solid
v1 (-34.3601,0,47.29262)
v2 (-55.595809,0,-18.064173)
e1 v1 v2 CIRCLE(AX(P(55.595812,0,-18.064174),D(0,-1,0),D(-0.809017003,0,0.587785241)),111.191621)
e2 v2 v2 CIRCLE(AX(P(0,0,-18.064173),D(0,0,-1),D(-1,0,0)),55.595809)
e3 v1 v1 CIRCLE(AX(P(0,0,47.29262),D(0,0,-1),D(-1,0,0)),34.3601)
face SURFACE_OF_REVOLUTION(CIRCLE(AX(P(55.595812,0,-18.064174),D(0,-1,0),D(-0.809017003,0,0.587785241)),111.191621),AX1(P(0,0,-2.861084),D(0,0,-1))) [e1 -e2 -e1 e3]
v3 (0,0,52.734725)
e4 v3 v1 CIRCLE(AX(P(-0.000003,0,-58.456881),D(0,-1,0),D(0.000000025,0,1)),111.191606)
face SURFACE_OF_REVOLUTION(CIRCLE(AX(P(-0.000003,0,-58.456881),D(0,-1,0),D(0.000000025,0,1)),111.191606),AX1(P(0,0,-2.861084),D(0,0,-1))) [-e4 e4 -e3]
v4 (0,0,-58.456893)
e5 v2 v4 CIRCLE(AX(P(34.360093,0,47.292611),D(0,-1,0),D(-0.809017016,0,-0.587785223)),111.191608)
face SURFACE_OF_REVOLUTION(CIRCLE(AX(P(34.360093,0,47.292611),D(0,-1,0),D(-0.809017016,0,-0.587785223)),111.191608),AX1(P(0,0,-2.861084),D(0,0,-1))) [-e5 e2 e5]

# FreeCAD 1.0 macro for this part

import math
import FreeCAD as App
import Part
import Sketcher
from FreeCAD import Vector
Q = App.Units.Quantity

doc = App.newDocument("Part")
body = doc.addObject("PartDesign::Body", "Body")

# Sketch on XZ plane
sketch1 = body.newObject("Sketcher::SketchObject", "Sketch")
sketch1.AttachmentSupport = (doc.getObject("XZ_Plane"), [""])
sketch1.MapMode = "FlatFace"
sketch1.addGeometry(Part.ArcOfCircle(Part.Circle(Vector(55.595812, -18.064174, 0), Vector(0, 0, 1), 111.191621), math.radians(144.000001), math.radians(180)), False)
sketch1.addGeometry(Part.ArcOfCircle(Part.Circle(Vector(34.360093, 47.292611, 0), Vector(0, 0, 1), 111.191608), math.radians(-144.000002), math.radians(-107.999998)), False)
sketch1.addGeometry(Part.LineSegment(Vector(0, -58.456893, 0), Vector(0, 52.734725, 0)), False)
sketch1.addGeometry(Part.ArcOfCircle(Part.Circle(Vector(-0.000003, -58.456881, 0), Vector(0, 0, 1), 111.191606), math.radians(89.999999), math.radians(108.000001)), False)
sketch1.addConstraint(Sketcher.Constraint("Coincident", 0, 2, 1, 1))
sketch1.addConstraint(Sketcher.Constraint("Coincident", 1, 2, 2, 1))
sketch1.addConstraint(Sketcher.Constraint("Coincident", 2, 2, 3, 1))
sketch1.addConstraint(Sketcher.Constraint("Coincident", 3, 2, 0, 1))
sketch1.addConstraint(Sketcher.Constraint("Vertical", 2))
sketch1.addConstraint(Sketcher.Constraint("Equal", 1, 3))
sketch1.addConstraint(Sketcher.Constraint("PointOnObject", 1, 2, -2))
sketch1.addConstraint(Sketcher.Constraint("Radius", 0, Q("111.191621 mm")))
sketch1.addConstraint(Sketcher.Constraint("Radius", 1, Q("111.191608 mm")))
sketch1.addConstraint(Sketcher.Constraint("DistanceY", 2, 1, 2, 2, Q("111.191618 mm")))
sketch1.addConstraint(Sketcher.Constraint("DistanceX", 3, 2, -1, 1, Q("34.3601 mm")))
sketch1.addConstraint(Sketcher.Constraint("DistanceY", 0, 2, 2, 2, Q("70.798898 mm")))
sketch1.addConstraint(Sketcher.Constraint("DistanceY", 0, 3, 2, 2, Q("70.798899 mm")))
sketch1.addConstraint(Sketcher.Constraint("DistanceY", 3, 3, 3, 2, Q("105.749501 mm")))
sketch1.addConstraint(Sketcher.Constraint("DistanceY", -1, 1, 1, 3, Q("47.292611 mm")))
revolution = body.newObject("PartDesign::Revolution", "Revolution")
revolution.Profile = sketch1
revolution.ReferenceAxis = (sketch1, ["V_Axis"])
revolution.Angle = 360

doc.recompute()
